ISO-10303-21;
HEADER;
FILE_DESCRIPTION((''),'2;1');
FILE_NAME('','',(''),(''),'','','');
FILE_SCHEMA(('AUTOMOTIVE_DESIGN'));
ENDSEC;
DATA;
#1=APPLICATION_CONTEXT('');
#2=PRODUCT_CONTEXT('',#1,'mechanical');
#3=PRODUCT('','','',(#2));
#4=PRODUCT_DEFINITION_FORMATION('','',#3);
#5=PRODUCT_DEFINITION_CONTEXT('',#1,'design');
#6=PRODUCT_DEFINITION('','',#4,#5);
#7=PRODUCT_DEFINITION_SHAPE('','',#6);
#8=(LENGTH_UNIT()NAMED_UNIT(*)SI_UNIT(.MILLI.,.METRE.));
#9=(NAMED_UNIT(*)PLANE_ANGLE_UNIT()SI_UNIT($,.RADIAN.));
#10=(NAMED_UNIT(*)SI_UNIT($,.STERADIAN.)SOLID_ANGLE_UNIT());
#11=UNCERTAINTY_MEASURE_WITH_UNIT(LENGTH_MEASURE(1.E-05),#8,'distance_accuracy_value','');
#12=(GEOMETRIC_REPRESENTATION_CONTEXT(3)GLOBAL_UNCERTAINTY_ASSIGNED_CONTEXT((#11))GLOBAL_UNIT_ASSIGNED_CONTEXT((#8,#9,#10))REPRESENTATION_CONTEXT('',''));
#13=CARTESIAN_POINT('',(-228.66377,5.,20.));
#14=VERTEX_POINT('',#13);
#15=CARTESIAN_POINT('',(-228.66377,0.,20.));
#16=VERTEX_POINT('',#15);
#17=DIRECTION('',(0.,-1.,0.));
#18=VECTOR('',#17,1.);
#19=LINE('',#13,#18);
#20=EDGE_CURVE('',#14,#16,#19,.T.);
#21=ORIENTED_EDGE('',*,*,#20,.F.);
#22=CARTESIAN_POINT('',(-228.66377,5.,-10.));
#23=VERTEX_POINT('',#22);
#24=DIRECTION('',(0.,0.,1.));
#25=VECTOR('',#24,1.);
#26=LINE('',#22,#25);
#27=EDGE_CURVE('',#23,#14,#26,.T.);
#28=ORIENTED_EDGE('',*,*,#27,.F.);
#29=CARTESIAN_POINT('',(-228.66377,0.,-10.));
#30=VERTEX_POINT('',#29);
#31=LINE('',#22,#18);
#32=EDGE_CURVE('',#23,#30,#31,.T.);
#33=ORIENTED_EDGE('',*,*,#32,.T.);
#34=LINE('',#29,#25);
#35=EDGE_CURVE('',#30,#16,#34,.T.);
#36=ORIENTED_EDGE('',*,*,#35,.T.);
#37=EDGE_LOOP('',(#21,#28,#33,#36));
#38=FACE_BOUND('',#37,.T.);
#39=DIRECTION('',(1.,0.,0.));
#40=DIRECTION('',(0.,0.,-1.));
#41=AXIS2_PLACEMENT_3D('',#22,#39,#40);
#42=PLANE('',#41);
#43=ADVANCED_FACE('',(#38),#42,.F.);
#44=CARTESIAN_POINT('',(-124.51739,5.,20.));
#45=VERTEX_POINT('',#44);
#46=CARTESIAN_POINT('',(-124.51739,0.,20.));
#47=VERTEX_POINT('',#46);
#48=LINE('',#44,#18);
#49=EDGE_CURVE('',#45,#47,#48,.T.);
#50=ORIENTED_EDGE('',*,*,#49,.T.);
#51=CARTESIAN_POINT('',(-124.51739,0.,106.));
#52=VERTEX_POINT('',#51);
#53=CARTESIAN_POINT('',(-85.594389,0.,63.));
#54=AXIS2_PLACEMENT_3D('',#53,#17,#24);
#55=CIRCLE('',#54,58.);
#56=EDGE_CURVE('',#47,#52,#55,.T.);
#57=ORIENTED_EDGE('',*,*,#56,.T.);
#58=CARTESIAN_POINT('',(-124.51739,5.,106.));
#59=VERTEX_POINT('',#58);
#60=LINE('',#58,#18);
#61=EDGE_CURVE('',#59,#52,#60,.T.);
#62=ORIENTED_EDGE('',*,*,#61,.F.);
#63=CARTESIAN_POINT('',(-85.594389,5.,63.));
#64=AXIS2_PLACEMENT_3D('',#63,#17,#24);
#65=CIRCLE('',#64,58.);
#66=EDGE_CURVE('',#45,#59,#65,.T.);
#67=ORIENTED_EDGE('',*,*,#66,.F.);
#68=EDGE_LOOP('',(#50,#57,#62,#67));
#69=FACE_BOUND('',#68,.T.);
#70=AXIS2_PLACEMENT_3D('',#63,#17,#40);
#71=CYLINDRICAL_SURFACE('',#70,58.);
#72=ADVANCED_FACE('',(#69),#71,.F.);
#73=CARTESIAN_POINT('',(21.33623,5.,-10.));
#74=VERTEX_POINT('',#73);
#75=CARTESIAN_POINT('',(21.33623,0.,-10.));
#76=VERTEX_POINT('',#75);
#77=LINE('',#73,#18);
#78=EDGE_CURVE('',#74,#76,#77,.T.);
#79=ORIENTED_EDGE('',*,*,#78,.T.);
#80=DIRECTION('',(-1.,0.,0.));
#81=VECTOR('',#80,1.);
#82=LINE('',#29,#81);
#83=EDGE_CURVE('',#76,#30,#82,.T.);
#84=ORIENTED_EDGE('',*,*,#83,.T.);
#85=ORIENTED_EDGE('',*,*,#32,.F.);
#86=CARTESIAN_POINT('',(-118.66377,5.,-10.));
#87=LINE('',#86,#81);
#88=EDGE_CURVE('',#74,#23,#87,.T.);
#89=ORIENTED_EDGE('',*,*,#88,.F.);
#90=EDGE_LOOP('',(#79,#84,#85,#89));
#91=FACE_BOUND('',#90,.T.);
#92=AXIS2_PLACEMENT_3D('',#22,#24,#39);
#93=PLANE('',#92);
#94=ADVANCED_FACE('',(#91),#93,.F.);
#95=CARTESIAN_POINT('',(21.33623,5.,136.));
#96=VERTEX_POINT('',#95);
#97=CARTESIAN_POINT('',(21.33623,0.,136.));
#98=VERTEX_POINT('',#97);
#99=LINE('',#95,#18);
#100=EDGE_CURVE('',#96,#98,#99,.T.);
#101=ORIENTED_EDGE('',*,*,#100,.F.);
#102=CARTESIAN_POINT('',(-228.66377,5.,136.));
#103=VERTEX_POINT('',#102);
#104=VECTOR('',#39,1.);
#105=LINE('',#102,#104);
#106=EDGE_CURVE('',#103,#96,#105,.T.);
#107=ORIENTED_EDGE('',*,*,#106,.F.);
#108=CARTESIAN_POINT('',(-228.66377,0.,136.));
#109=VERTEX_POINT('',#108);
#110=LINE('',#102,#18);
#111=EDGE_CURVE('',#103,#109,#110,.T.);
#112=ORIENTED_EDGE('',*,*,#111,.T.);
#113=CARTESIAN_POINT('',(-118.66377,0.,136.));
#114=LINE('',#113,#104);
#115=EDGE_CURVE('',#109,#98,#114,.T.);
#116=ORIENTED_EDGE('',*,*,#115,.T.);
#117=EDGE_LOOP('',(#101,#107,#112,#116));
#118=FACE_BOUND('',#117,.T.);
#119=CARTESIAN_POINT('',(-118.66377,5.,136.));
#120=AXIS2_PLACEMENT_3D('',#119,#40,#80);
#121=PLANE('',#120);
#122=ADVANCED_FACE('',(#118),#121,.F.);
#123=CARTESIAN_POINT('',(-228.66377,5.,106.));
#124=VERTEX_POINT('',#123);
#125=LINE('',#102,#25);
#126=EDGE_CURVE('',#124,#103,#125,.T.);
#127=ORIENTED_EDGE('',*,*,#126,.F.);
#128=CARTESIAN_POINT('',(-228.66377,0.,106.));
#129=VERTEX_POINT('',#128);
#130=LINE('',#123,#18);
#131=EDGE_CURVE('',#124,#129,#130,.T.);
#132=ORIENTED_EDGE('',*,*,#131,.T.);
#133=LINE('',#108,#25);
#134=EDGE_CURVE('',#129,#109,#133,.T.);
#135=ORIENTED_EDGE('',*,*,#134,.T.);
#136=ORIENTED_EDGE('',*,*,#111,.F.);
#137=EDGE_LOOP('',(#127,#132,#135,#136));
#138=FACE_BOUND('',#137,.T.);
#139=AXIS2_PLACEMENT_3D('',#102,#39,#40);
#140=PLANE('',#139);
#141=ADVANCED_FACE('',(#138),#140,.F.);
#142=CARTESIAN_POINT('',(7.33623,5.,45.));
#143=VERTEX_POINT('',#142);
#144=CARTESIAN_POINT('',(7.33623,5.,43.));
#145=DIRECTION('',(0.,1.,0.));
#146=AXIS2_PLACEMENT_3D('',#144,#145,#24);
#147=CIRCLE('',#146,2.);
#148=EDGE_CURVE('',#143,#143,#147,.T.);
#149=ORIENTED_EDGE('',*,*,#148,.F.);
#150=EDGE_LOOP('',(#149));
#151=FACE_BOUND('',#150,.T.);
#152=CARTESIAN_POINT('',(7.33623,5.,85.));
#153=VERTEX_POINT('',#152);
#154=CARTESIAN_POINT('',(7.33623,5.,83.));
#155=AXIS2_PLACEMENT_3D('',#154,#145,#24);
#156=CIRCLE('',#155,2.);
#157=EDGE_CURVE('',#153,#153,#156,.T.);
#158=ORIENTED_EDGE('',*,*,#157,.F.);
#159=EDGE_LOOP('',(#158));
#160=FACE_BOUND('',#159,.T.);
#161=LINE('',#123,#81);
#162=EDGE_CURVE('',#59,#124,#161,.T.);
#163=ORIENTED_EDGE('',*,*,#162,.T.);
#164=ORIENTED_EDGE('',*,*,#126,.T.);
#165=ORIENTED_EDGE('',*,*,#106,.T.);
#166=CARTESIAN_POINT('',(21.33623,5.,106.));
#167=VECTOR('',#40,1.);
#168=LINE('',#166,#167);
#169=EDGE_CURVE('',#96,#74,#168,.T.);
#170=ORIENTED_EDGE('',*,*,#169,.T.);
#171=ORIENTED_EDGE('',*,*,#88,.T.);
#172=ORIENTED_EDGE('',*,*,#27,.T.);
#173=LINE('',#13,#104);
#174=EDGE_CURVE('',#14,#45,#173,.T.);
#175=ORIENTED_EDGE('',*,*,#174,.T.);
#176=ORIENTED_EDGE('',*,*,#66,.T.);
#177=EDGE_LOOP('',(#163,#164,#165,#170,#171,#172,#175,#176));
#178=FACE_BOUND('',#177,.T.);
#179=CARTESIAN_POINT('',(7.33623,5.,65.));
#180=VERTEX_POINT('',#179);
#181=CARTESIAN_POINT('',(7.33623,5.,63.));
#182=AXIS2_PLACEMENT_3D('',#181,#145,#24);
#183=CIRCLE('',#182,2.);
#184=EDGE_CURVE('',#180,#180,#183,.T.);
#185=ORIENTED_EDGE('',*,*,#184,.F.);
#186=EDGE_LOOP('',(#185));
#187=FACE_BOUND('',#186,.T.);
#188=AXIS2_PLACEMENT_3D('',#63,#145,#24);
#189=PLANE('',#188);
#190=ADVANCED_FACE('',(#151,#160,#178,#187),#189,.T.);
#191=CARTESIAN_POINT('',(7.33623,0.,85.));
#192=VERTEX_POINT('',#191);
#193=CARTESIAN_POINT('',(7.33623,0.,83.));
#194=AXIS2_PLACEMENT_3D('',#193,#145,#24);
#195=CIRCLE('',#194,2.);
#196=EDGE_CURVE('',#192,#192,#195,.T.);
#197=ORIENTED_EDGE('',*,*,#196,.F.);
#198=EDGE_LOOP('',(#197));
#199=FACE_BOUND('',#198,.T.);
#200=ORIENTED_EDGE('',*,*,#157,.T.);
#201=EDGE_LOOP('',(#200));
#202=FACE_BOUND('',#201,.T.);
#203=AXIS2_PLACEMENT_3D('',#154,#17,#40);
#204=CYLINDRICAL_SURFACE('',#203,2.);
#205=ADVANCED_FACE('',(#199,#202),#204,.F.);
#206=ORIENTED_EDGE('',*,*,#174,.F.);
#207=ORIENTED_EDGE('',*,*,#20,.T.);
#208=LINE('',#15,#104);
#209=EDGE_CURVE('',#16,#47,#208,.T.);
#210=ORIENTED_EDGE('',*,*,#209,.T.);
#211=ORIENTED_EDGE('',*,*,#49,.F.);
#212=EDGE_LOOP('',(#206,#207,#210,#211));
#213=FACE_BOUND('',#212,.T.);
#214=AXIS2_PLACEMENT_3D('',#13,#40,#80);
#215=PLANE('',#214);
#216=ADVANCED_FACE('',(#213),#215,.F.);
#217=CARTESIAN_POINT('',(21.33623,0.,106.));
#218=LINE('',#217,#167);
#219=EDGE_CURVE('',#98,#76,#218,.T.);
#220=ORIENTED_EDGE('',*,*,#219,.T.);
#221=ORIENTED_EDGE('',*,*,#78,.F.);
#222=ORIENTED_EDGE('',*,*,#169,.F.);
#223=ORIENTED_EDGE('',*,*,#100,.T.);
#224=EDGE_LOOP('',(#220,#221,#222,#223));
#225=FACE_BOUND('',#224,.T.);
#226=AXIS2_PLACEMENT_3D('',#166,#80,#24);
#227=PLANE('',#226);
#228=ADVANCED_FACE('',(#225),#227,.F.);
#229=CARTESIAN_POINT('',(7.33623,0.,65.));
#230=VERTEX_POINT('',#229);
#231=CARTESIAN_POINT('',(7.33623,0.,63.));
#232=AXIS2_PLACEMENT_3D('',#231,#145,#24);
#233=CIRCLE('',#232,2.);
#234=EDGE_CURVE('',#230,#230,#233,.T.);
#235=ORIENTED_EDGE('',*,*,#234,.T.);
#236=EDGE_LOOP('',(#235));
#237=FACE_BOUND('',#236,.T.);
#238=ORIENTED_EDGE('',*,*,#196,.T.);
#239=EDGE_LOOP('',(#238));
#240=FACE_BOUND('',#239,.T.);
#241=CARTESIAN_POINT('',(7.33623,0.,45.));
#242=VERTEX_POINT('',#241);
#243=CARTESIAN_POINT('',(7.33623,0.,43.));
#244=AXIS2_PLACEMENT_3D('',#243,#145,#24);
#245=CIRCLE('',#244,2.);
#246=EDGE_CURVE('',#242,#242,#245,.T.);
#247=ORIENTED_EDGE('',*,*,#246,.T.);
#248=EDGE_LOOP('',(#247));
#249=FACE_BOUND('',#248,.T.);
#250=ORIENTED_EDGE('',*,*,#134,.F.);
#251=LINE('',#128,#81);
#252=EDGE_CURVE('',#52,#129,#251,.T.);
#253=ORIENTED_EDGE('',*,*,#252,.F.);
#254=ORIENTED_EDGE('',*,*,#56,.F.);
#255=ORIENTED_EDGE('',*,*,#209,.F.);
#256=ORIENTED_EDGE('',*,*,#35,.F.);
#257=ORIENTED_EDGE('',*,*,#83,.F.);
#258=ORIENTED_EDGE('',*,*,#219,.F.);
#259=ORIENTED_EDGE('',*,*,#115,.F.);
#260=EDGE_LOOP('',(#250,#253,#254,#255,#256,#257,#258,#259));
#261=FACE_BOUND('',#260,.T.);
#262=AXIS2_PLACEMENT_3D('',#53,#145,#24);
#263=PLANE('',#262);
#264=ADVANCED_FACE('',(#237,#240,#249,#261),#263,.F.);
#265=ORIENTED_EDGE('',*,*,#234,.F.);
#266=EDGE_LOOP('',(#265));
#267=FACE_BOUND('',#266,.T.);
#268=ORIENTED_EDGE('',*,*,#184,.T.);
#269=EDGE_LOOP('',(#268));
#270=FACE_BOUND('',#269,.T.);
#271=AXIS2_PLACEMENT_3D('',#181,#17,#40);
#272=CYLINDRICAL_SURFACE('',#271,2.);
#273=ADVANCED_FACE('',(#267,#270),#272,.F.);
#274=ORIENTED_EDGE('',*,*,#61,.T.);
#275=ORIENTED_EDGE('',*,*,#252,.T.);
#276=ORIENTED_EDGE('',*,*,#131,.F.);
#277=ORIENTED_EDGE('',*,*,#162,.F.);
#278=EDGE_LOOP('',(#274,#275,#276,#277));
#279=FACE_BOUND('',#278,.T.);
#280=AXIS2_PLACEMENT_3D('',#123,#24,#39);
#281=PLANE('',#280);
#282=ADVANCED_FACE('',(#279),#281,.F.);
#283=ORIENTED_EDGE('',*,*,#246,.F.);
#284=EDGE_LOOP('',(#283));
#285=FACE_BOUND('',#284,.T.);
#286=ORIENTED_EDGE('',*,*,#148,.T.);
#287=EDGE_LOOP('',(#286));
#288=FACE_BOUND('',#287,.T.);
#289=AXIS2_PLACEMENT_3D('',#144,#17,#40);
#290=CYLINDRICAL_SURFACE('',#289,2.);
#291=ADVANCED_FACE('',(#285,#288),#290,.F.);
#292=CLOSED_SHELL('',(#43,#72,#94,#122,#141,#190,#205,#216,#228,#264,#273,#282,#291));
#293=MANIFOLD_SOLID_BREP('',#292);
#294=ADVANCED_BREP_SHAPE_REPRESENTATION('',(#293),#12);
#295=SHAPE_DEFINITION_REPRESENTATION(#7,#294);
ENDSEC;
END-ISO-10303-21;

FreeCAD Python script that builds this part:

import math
import FreeCAD as App
import Part
import Sketcher

doc = App.newDocument("Part")
body = doc.addObject("PartDesign::Body", "Body")

sketch1 = doc.addObject("Sketcher::SketchObject", "Sketch")
body.addObject(sketch1)
sketch1.AttachmentSupport = (doc.XZ_Plane, [""])
sketch1.MapMode = "FlatFace"
sketch1.addGeometry([
    Part.LineSegment(App.Vector(21.3, -10, 0), App.Vector(-228.7, -10, 0)),
    Part.LineSegment(App.Vector(-228.7, -10, 0), App.Vector(-228.7, 20, 0)),
    Part.LineSegment(App.Vector(-228.7, 20, 0), App.Vector(-124.5, 20, 0)),
    Part.ArcOfCircle(Part.Circle(App.Vector(-85.6, 63, 0), App.Vector(0, 0, 1), 58), math.radians(-132), math.radians(132)),
    Part.LineSegment(App.Vector(-124.5, 106, 0), App.Vector(-228.7, 106, 0)),
    Part.LineSegment(App.Vector(-228.7, 106, 0), App.Vector(-228.7, 136, 0)),
    Part.LineSegment(App.Vector(-228.7, 136, 0), App.Vector(21.3, 136, 0)),
    Part.LineSegment(App.Vector(21.3, 136, 0), App.Vector(21.3, -10, 0)),
    Part.Circle(App.Vector(7.3, 83, 0), App.Vector(0, 0, 1), 2),
    Part.Circle(App.Vector(7.3, 63, 0), App.Vector(0, 0, 1), 2),
    Part.Circle(App.Vector(7.3, 43, 0), App.Vector(0, 0, 1), 2),
], False)
sketch1.addConstraint([
    Sketcher.Constraint("Coincident", 0, 2, 1, 1),
    Sketcher.Constraint("Coincident", 1, 2, 2, 1),
    Sketcher.Constraint("Coincident", 2, 2, 3, 1),
    Sketcher.Constraint("Coincident", 3, 2, 4, 1),
    Sketcher.Constraint("Coincident", 4, 2, 5, 1),
    Sketcher.Constraint("Coincident", 5, 2, 6, 1),
    Sketcher.Constraint("Coincident", 6, 2, 7, 1),
    Sketcher.Constraint("Coincident", 7, 2, 0, 1),
    Sketcher.Constraint("Horizontal", 0),
    Sketcher.Constraint("Vertical", 1),
    Sketcher.Constraint("Horizontal", 2),
    Sketcher.Constraint("Horizontal", 4),
    Sketcher.Constraint("Vertical", 5),
    Sketcher.Constraint("Horizontal", 6),
    Sketcher.Constraint("Vertical", 7),
    Sketcher.Constraint("Equal", 8, 9),
    Sketcher.Constraint("Equal", 9, 10),
    Sketcher.Constraint("Horizontal", 3, 3, 9, 3),
    Sketcher.Constraint("Vertical", 8, 3, 9, 3),
    Sketcher.Constraint("Vertical", 9, 3, 10, 3),
    Sketcher.Constraint("Vertical", 2, 2, 3, 2),
    Sketcher.Constraint("Vertical", 1, 2, 4, 2),
    Sketcher.Constraint("Equal", 1, 5),
    Sketcher.Constraint("Diameter", 8, 4.0),
    Sketcher.Constraint("Radius", 3, 58.0),
    Sketcher.Constraint("DistanceX", 0, 2, 0, 1, 250.0),
    Sketcher.Constraint("DistanceY", 1, 1, 1, 2, 30.0),
    Sketcher.Constraint("DistanceY", 7, 2, 7, 1, 146.0),
    Sketcher.Constraint("DistanceY", -1, 1, 3, 3, 63.0),
    Sketcher.Constraint("DistanceY", -1, 1, 8, 3, 83.0),
    Sketcher.Constraint("DistanceY", -1, 1, 10, 3, 43.0),
    Sketcher.Constraint("DistanceX", 0, 2, 10, 3, 236.0),
    Sketcher.Constraint("DistanceX", 2, 1, 2, 2, 104.14638),
    Sketcher.Constraint("DistanceX", 3, 3, -1, 1, 85.594389),
])
pad1 = doc.addObject("PartDesign::Pad", "Pad")
body.addObject(pad1)
pad1.Profile = sketch1
pad1.Length = 5
pad1.Reversed = True

doc.recompute()
